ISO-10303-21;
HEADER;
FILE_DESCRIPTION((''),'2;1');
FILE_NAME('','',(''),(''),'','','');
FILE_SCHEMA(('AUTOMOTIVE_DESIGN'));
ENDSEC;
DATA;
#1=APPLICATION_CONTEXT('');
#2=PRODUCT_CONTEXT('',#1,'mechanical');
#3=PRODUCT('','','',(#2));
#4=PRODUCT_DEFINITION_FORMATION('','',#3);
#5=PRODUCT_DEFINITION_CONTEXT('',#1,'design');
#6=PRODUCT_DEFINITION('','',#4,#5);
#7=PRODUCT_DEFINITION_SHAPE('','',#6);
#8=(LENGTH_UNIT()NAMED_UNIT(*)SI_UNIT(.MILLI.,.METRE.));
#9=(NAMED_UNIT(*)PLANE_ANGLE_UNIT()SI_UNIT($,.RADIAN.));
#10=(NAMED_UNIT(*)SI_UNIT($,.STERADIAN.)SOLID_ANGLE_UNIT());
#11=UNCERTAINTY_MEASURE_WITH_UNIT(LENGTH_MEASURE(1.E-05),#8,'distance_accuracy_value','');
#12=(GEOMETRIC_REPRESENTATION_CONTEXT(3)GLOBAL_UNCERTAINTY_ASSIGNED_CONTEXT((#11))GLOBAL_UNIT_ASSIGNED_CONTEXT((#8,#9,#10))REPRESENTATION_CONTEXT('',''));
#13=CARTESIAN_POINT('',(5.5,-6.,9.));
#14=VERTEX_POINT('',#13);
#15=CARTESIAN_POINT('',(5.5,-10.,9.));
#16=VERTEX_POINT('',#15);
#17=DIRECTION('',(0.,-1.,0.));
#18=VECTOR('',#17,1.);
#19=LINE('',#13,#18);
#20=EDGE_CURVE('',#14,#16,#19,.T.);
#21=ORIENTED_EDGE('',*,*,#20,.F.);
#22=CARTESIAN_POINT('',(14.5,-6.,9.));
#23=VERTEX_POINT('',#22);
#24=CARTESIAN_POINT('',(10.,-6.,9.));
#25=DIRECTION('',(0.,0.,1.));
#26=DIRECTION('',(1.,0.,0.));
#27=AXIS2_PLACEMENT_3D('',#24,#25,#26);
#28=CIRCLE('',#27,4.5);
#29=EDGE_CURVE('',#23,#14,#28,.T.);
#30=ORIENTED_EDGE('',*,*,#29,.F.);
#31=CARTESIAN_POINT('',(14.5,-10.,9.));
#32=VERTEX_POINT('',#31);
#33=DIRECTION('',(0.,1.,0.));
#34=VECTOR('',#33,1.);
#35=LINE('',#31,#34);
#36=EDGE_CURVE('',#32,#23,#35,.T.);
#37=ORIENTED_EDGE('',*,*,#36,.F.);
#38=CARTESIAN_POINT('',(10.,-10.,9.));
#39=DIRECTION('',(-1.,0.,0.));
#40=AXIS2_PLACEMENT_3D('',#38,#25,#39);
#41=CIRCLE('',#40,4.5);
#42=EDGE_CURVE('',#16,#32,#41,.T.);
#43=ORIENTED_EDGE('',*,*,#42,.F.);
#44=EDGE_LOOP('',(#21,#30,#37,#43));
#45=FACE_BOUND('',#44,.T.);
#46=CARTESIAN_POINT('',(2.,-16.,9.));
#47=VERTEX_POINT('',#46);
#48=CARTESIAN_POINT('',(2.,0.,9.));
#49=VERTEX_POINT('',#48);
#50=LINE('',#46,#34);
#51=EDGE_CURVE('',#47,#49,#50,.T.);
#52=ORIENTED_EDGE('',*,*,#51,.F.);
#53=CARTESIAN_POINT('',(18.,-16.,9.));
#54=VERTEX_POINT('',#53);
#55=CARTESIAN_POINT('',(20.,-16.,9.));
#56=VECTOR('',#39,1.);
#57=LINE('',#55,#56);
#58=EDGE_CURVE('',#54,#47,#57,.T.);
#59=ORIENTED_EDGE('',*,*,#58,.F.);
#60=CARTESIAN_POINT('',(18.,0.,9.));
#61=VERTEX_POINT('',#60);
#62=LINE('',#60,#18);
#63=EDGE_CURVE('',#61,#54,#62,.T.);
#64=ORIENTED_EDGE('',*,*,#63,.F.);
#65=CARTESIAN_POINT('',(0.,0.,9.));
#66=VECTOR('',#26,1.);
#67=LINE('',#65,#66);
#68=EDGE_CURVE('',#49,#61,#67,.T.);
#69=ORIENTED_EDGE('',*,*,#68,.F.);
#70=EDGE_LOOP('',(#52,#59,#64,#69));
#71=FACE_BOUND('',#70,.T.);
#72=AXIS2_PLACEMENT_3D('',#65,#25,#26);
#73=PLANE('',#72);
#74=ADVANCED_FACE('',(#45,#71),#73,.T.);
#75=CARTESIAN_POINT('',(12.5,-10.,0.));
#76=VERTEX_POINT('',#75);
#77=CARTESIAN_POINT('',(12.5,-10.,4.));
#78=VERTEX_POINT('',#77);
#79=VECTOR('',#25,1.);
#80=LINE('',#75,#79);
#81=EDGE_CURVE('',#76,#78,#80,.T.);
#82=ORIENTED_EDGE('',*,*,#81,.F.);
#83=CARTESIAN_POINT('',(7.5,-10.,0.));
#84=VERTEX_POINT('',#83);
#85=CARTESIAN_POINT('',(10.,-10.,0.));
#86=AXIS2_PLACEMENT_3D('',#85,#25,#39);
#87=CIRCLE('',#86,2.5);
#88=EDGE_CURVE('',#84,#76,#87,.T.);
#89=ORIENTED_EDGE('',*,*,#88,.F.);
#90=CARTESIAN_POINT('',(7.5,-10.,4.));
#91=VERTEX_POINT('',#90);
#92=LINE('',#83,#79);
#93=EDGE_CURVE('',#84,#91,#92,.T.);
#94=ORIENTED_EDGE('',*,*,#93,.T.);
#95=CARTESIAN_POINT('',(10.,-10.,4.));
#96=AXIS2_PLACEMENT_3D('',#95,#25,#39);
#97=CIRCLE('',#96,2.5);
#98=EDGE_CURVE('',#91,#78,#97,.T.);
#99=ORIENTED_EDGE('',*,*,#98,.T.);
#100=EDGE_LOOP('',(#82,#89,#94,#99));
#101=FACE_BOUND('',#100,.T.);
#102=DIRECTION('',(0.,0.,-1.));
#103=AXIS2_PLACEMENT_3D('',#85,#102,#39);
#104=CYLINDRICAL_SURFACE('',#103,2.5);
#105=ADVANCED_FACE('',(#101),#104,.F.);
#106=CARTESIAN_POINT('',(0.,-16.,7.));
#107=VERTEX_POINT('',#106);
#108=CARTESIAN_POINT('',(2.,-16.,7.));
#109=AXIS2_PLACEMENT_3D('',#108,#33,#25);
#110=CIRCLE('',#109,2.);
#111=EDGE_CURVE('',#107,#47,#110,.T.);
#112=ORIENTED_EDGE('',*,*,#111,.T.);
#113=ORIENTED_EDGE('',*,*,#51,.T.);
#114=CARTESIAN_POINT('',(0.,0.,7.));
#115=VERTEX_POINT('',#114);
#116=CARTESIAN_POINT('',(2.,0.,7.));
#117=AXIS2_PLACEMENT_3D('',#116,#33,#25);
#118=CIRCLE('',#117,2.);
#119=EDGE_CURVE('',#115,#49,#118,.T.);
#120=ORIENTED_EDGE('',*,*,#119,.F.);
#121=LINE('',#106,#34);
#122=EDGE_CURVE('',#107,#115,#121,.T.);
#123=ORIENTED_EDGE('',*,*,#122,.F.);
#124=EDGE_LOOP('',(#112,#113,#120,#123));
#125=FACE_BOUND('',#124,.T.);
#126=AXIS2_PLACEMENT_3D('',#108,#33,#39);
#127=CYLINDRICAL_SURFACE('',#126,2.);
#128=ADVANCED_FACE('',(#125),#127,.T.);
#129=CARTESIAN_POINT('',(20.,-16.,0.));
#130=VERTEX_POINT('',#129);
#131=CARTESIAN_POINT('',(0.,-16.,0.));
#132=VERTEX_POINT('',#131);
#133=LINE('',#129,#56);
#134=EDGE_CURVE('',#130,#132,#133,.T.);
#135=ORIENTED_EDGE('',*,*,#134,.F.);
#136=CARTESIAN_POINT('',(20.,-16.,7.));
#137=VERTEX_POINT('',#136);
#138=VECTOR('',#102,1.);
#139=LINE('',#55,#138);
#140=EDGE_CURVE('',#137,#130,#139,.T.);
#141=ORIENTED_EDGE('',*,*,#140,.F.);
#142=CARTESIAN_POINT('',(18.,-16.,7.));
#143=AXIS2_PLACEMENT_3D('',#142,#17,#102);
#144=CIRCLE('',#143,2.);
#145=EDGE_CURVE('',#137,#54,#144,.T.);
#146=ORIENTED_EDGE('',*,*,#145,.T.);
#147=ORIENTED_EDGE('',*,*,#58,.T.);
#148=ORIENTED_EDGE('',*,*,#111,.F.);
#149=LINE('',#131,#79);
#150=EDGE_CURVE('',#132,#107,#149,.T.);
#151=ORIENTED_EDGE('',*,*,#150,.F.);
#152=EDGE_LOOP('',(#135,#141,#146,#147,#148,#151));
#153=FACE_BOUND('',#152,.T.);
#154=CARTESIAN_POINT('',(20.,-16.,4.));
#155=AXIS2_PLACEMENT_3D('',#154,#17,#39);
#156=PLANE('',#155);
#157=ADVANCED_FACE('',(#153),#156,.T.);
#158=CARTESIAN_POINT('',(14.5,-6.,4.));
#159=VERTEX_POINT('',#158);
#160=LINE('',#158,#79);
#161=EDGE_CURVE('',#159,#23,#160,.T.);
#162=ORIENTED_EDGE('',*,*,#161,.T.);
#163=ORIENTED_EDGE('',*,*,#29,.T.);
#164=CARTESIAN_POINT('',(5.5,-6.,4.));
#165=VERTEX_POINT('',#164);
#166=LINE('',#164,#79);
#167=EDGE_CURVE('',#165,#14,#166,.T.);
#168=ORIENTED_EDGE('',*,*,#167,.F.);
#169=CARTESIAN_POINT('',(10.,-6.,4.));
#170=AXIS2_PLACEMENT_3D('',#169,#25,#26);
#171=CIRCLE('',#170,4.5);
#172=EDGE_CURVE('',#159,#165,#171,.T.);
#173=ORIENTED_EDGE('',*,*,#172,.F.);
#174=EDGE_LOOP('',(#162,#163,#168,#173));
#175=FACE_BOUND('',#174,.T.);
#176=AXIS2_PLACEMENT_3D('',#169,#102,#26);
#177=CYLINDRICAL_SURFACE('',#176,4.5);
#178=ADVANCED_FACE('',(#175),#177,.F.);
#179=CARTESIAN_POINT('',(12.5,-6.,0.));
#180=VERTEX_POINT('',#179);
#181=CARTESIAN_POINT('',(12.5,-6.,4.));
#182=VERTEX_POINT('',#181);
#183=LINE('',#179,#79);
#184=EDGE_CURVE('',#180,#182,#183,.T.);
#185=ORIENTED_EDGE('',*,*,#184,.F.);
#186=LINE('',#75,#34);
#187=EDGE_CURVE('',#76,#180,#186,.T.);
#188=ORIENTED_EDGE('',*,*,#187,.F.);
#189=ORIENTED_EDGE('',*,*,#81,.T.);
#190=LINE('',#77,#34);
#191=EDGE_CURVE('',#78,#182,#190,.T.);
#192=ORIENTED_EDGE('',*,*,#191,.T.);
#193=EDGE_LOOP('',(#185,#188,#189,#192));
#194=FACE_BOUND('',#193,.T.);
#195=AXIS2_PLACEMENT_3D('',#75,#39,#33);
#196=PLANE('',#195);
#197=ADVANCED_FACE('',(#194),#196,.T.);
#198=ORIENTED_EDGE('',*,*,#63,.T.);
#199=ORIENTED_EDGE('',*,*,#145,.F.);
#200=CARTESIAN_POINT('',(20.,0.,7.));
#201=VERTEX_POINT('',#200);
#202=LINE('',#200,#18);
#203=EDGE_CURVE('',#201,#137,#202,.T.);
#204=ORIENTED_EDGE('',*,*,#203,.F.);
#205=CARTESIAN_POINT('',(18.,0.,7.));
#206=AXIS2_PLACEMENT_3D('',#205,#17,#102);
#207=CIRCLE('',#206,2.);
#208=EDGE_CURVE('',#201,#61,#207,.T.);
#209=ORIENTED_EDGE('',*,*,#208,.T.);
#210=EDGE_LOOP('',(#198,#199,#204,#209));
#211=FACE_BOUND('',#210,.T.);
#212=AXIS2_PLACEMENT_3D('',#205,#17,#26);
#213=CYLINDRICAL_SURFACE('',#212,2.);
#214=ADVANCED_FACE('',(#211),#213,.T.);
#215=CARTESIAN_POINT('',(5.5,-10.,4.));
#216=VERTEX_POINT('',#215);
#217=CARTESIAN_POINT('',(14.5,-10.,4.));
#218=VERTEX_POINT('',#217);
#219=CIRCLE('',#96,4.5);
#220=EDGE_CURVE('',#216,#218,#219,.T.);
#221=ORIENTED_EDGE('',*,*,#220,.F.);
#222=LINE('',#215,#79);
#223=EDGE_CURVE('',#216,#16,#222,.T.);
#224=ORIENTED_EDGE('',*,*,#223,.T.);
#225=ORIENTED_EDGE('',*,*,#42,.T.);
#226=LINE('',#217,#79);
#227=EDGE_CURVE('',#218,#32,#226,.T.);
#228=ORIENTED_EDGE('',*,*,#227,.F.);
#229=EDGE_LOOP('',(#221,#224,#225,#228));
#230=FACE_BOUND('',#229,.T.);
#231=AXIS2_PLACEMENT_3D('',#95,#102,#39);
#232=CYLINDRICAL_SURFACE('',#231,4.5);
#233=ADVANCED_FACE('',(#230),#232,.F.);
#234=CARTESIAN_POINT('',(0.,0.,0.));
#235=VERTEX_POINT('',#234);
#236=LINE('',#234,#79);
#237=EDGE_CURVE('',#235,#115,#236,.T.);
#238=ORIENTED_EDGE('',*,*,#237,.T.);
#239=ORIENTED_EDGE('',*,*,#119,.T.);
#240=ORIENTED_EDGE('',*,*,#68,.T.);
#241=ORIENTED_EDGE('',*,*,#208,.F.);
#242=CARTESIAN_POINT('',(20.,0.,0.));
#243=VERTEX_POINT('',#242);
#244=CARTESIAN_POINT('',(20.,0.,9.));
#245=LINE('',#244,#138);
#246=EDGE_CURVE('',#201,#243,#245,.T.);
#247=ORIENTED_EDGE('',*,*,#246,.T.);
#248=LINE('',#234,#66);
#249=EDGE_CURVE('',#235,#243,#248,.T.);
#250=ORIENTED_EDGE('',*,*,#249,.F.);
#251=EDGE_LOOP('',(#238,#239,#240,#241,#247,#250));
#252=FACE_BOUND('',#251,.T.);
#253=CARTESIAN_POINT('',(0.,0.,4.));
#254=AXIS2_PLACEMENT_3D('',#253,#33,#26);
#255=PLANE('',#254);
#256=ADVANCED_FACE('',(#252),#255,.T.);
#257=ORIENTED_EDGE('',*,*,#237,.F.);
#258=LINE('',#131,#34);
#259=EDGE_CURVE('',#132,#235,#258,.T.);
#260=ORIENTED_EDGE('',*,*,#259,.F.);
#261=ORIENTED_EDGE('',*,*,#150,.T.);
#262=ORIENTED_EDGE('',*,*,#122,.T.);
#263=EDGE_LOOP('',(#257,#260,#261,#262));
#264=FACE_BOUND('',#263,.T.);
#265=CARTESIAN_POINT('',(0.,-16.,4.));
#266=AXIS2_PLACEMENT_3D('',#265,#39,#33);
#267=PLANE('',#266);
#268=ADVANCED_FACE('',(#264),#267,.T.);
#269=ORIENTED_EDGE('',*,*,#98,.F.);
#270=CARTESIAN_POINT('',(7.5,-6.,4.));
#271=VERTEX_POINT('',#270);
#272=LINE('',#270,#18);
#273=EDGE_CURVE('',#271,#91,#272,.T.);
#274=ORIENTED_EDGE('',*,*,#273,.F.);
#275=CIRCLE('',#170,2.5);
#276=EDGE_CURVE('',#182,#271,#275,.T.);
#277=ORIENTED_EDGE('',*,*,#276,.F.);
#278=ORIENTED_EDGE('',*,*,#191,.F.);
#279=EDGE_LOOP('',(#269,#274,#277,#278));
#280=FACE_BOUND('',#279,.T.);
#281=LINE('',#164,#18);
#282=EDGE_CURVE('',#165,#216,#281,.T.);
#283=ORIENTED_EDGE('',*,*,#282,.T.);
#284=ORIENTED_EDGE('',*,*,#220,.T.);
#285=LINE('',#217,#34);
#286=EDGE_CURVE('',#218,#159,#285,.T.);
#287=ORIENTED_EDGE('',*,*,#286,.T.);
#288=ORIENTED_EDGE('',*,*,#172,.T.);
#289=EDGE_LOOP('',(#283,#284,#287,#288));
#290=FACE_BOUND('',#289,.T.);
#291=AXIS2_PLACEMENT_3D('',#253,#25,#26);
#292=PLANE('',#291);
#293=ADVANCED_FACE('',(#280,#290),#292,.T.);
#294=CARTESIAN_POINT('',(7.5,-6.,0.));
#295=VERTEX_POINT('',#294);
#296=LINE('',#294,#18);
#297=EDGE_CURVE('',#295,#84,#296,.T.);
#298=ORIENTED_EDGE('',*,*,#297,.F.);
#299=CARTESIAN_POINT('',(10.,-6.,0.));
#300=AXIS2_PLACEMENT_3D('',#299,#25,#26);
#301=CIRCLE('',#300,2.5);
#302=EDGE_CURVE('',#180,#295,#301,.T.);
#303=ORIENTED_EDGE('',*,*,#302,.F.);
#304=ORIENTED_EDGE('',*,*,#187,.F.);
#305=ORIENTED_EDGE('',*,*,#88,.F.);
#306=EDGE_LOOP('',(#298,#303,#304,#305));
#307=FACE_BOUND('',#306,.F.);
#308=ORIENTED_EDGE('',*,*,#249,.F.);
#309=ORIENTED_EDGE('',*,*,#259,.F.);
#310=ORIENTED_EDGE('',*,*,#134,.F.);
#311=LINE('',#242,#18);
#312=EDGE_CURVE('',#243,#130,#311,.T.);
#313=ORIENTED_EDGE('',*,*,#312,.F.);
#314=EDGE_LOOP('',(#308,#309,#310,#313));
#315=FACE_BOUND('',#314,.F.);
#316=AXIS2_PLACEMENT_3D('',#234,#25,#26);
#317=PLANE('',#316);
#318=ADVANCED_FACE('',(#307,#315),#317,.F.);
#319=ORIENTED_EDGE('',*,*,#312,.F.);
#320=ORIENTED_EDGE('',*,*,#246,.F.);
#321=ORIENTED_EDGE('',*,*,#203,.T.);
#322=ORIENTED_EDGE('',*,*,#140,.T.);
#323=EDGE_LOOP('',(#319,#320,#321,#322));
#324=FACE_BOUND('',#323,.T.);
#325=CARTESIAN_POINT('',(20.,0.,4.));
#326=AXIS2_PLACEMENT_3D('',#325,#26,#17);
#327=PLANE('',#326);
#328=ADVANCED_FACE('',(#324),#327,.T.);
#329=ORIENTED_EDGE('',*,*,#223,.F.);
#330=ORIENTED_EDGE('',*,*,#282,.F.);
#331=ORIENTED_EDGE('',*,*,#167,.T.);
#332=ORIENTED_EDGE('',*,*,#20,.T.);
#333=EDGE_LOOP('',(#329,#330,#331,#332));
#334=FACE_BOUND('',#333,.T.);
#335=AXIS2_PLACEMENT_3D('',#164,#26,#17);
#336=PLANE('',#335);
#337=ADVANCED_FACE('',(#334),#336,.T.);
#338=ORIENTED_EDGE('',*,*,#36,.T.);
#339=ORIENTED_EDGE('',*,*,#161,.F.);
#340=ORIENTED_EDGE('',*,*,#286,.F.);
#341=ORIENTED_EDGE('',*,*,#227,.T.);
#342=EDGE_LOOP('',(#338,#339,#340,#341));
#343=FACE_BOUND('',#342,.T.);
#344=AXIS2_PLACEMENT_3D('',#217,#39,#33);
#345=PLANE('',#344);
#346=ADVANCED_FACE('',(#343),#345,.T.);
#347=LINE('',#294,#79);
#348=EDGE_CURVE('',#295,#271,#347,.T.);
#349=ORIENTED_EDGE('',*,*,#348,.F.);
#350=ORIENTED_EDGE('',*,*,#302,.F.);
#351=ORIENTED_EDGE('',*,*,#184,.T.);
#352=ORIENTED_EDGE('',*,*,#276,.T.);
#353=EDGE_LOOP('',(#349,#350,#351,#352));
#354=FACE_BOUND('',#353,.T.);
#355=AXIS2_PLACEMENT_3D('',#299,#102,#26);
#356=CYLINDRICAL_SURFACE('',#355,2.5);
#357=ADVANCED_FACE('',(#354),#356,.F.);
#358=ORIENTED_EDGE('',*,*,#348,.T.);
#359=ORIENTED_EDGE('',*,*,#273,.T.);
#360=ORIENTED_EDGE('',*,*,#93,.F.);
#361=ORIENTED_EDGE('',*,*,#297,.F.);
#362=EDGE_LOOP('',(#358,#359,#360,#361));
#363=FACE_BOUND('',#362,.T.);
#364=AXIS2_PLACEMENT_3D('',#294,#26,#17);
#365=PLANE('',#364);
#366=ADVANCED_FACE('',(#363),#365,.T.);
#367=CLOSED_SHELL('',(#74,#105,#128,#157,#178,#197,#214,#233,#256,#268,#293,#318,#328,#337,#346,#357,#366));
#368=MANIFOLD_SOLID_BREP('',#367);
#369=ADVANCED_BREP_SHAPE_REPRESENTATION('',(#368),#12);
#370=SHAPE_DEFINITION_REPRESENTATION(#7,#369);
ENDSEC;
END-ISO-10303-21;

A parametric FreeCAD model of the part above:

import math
import FreeCAD as App
import Part
import Sketcher

V = App.Vector
Q = App.Units.Quantity


def edges_at(feature, points):
    """Names of the edges that pass closest to the given points."""
    edges = feature.Shape.Edges
    near = lambda p: min(range(len(edges)), key=lambda i: edges[i].distToShape(Part.Vertex(*p))[0])
    return sorted({f"Edge{near(p) + 1}" for p in points})

doc = App.newDocument("Part")
body = doc.addObject("PartDesign::Body", "Body")

# Sketch on XY plane
sketch1 = body.newObject("Sketcher::SketchObject", "Sketch")
sketch1.AttachmentSupport = (doc.getObject("XY_Plane"), [""])
sketch1.MapMode = "FlatFace"
sketch1.addGeometry(Part.LineSegment(V(20, 0, 0), V(0, 0, 0)), False)
sketch1.addGeometry(Part.LineSegment(V(0, 0, 0), V(0, -16, 0)), False)
sketch1.addGeometry(Part.LineSegment(V(0, -16, 0), V(20, -16, 0)), False)
sketch1.addGeometry(Part.LineSegment(V(20, -16, 0), V(20, 0, 0)), False)
sketch1.addGeometry(Part.LineSegment(V(7.5, -10, 0), V(7.5, -6, 0)), False)
sketch1.addGeometry(Part.ArcOfCircle(Part.Circle(V(10, -6, 0), V(0, 0, 1), 2.5), math.radians(0), math.radians(180)), False)
sketch1.addGeometry(Part.LineSegment(V(12.5, -6, 0), V(12.5, -10, 0)), False)
sketch1.addGeometry(Part.ArcOfCircle(Part.Circle(V(10, -10, 0), V(0, 0, 1), 2.5), math.radians(180), math.radians(360)), False)
sketch1.addConstraint(Sketcher.Constraint("Coincident", 0, 2, 1, 1))
sketch1.addConstraint(Sketcher.Constraint("Coincident", 1, 2, 2, 1))
sketch1.addConstraint(Sketcher.Constraint("Coincident", 2, 2, 3, 1))
sketch1.addConstraint(Sketcher.Constraint("Coincident", 3, 2, 0, 1))
sketch1.addConstraint(Sketcher.Constraint("Tangent", 4, 2, 5, 2))
sketch1.addConstraint(Sketcher.Constraint("Tangent", 5, 1, 6, 1))
sketch1.addConstraint(Sketcher.Constraint("Tangent", 6, 2, 7, 2))
sketch1.addConstraint(Sketcher.Constraint("Tangent", 7, 1, 4, 1))
sketch1.addConstraint(Sketcher.Constraint("Horizontal", 0))
sketch1.addConstraint(Sketcher.Constraint("Vertical", 1))
sketch1.addConstraint(Sketcher.Constraint("Horizontal", 2))
sketch1.addConstraint(Sketcher.Constraint("Vertical", 3))
sketch1.addConstraint(Sketcher.Constraint("Vertical", 4))
sketch1.addConstraint(Sketcher.Constraint("Vertical", 6))
sketch1.addConstraint(Sketcher.Constraint("Coincident", 0, 2, -1, 1))
sketch1.addConstraint(Sketcher.Constraint("Radius", 5, Q("2.5 mm")))
sketch1.addConstraint(Sketcher.Constraint("DistanceX", 0, 2, 0, 1, Q("20 mm")))
sketch1.addConstraint(Sketcher.Constraint("DistanceY", 1, 2, 1, 1, Q("16 mm")))
sketch1.addConstraint(Sketcher.Constraint("DistanceY", 4, 1, 4, 2, Q("4 mm")))
sketch1.addConstraint(Sketcher.Constraint("DistanceX", -1, 1, 5, 3, Q("10 mm")))
sketch1.addConstraint(Sketcher.Constraint("DistanceY", 5, 3, -1, 1, Q("6 mm")))
pad1 = body.newObject("PartDesign::Pad", "Pad")
pad1.Profile = sketch1
pad1.Length = 4

# Sketch on XY plane
sketch2 = body.newObject("Sketcher::SketchObject", "Sketch001")
sketch2.AttachmentSupport = (doc.getObject("XY_Plane"), [""])
sketch2.MapMode = "FlatFace"
sketch2.AttachmentOffset = App.Placement(V(0, 0, 4), App.Rotation())
sketch2.addGeometry(Part.LineSegment(V(20, 0, 0), V(0, 0, 0)), False)
sketch2.addGeometry(Part.LineSegment(V(0, 0, 0), V(0, -16, 0)), False)
sketch2.addGeometry(Part.LineSegment(V(0, -16, 0), V(20, -16, 0)), False)
sketch2.addGeometry(Part.LineSegment(V(20, -16, 0), V(20, 0, 0)), False)
sketch2.addGeometry(Part.LineSegment(V(5.5, -10, 0), V(5.5, -6, 0)), False)
sketch2.addGeometry(Part.ArcOfCircle(Part.Circle(V(10, -6, 0), V(0, 0, 1), 4.5), math.radians(0), math.radians(180)), False)
sketch2.addGeometry(Part.LineSegment(V(14.5, -6, 0), V(14.5, -10, 0)), False)
sketch2.addGeometry(Part.ArcOfCircle(Part.Circle(V(10, -10, 0), V(0, 0, 1), 4.5), math.radians(180), math.radians(360)), False)
sketch2.addConstraint(Sketcher.Constraint("Coincident", 0, 2, 1, 1))
sketch2.addConstraint(Sketcher.Constraint("Coincident", 1, 2, 2, 1))
sketch2.addConstraint(Sketcher.Constraint("Coincident", 2, 2, 3, 1))
sketch2.addConstraint(Sketcher.Constraint("Coincident", 3, 2, 0, 1))
sketch2.addConstraint(Sketcher.Constraint("Tangent", 4, 2, 5, 2))
sketch2.addConstraint(Sketcher.Constraint("Tangent", 5, 1, 6, 1))
sketch2.addConstraint(Sketcher.Constraint("Tangent", 6, 2, 7, 2))
sketch2.addConstraint(Sketcher.Constraint("Tangent", 7, 1, 4, 1))
sketch2.addConstraint(Sketcher.Constraint("Horizontal", 0))
sketch2.addConstraint(Sketcher.Constraint("Vertical", 1))
sketch2.addConstraint(Sketcher.Constraint("Horizontal", 2))
sketch2.addConstraint(Sketcher.Constraint("Vertical", 3))
sketch2.addConstraint(Sketcher.Constraint("Vertical", 4))
sketch2.addConstraint(Sketcher.Constraint("Vertical", 6))
sketch2.addConstraint(Sketcher.Constraint("Coincident", 0, 2, -1, 1))
sketch2.addConstraint(Sketcher.Constraint("Radius", 5, Q("4.5 mm")))
sketch2.addConstraint(Sketcher.Constraint("DistanceX", 0, 2, 0, 1, Q("20 mm")))
sketch2.addConstraint(Sketcher.Constraint("DistanceY", 1, 2, 1, 1, Q("16 mm")))
sketch2.addConstraint(Sketcher.Constraint("DistanceY", 4, 1, 4, 2, Q("4 mm")))
sketch2.addConstraint(Sketcher.Constraint("DistanceX", -1, 1, 5, 3, Q("10 mm")))
sketch2.addConstraint(Sketcher.Constraint("DistanceY", 5, 3, -1, 1, Q("6 mm")))
pad2 = body.newObject("PartDesign::Pad", "Pad001")
pad2.Profile = sketch2
pad2.Length = 5
doc.recompute()

fillet = body.newObject("PartDesign::Fillet", "Fillet")
fillet.Base = (pad2, edges_at(pad2, [(20, -8, 9), (0, -8, 9)]))
fillet.Radius = 2

doc.recompute()
